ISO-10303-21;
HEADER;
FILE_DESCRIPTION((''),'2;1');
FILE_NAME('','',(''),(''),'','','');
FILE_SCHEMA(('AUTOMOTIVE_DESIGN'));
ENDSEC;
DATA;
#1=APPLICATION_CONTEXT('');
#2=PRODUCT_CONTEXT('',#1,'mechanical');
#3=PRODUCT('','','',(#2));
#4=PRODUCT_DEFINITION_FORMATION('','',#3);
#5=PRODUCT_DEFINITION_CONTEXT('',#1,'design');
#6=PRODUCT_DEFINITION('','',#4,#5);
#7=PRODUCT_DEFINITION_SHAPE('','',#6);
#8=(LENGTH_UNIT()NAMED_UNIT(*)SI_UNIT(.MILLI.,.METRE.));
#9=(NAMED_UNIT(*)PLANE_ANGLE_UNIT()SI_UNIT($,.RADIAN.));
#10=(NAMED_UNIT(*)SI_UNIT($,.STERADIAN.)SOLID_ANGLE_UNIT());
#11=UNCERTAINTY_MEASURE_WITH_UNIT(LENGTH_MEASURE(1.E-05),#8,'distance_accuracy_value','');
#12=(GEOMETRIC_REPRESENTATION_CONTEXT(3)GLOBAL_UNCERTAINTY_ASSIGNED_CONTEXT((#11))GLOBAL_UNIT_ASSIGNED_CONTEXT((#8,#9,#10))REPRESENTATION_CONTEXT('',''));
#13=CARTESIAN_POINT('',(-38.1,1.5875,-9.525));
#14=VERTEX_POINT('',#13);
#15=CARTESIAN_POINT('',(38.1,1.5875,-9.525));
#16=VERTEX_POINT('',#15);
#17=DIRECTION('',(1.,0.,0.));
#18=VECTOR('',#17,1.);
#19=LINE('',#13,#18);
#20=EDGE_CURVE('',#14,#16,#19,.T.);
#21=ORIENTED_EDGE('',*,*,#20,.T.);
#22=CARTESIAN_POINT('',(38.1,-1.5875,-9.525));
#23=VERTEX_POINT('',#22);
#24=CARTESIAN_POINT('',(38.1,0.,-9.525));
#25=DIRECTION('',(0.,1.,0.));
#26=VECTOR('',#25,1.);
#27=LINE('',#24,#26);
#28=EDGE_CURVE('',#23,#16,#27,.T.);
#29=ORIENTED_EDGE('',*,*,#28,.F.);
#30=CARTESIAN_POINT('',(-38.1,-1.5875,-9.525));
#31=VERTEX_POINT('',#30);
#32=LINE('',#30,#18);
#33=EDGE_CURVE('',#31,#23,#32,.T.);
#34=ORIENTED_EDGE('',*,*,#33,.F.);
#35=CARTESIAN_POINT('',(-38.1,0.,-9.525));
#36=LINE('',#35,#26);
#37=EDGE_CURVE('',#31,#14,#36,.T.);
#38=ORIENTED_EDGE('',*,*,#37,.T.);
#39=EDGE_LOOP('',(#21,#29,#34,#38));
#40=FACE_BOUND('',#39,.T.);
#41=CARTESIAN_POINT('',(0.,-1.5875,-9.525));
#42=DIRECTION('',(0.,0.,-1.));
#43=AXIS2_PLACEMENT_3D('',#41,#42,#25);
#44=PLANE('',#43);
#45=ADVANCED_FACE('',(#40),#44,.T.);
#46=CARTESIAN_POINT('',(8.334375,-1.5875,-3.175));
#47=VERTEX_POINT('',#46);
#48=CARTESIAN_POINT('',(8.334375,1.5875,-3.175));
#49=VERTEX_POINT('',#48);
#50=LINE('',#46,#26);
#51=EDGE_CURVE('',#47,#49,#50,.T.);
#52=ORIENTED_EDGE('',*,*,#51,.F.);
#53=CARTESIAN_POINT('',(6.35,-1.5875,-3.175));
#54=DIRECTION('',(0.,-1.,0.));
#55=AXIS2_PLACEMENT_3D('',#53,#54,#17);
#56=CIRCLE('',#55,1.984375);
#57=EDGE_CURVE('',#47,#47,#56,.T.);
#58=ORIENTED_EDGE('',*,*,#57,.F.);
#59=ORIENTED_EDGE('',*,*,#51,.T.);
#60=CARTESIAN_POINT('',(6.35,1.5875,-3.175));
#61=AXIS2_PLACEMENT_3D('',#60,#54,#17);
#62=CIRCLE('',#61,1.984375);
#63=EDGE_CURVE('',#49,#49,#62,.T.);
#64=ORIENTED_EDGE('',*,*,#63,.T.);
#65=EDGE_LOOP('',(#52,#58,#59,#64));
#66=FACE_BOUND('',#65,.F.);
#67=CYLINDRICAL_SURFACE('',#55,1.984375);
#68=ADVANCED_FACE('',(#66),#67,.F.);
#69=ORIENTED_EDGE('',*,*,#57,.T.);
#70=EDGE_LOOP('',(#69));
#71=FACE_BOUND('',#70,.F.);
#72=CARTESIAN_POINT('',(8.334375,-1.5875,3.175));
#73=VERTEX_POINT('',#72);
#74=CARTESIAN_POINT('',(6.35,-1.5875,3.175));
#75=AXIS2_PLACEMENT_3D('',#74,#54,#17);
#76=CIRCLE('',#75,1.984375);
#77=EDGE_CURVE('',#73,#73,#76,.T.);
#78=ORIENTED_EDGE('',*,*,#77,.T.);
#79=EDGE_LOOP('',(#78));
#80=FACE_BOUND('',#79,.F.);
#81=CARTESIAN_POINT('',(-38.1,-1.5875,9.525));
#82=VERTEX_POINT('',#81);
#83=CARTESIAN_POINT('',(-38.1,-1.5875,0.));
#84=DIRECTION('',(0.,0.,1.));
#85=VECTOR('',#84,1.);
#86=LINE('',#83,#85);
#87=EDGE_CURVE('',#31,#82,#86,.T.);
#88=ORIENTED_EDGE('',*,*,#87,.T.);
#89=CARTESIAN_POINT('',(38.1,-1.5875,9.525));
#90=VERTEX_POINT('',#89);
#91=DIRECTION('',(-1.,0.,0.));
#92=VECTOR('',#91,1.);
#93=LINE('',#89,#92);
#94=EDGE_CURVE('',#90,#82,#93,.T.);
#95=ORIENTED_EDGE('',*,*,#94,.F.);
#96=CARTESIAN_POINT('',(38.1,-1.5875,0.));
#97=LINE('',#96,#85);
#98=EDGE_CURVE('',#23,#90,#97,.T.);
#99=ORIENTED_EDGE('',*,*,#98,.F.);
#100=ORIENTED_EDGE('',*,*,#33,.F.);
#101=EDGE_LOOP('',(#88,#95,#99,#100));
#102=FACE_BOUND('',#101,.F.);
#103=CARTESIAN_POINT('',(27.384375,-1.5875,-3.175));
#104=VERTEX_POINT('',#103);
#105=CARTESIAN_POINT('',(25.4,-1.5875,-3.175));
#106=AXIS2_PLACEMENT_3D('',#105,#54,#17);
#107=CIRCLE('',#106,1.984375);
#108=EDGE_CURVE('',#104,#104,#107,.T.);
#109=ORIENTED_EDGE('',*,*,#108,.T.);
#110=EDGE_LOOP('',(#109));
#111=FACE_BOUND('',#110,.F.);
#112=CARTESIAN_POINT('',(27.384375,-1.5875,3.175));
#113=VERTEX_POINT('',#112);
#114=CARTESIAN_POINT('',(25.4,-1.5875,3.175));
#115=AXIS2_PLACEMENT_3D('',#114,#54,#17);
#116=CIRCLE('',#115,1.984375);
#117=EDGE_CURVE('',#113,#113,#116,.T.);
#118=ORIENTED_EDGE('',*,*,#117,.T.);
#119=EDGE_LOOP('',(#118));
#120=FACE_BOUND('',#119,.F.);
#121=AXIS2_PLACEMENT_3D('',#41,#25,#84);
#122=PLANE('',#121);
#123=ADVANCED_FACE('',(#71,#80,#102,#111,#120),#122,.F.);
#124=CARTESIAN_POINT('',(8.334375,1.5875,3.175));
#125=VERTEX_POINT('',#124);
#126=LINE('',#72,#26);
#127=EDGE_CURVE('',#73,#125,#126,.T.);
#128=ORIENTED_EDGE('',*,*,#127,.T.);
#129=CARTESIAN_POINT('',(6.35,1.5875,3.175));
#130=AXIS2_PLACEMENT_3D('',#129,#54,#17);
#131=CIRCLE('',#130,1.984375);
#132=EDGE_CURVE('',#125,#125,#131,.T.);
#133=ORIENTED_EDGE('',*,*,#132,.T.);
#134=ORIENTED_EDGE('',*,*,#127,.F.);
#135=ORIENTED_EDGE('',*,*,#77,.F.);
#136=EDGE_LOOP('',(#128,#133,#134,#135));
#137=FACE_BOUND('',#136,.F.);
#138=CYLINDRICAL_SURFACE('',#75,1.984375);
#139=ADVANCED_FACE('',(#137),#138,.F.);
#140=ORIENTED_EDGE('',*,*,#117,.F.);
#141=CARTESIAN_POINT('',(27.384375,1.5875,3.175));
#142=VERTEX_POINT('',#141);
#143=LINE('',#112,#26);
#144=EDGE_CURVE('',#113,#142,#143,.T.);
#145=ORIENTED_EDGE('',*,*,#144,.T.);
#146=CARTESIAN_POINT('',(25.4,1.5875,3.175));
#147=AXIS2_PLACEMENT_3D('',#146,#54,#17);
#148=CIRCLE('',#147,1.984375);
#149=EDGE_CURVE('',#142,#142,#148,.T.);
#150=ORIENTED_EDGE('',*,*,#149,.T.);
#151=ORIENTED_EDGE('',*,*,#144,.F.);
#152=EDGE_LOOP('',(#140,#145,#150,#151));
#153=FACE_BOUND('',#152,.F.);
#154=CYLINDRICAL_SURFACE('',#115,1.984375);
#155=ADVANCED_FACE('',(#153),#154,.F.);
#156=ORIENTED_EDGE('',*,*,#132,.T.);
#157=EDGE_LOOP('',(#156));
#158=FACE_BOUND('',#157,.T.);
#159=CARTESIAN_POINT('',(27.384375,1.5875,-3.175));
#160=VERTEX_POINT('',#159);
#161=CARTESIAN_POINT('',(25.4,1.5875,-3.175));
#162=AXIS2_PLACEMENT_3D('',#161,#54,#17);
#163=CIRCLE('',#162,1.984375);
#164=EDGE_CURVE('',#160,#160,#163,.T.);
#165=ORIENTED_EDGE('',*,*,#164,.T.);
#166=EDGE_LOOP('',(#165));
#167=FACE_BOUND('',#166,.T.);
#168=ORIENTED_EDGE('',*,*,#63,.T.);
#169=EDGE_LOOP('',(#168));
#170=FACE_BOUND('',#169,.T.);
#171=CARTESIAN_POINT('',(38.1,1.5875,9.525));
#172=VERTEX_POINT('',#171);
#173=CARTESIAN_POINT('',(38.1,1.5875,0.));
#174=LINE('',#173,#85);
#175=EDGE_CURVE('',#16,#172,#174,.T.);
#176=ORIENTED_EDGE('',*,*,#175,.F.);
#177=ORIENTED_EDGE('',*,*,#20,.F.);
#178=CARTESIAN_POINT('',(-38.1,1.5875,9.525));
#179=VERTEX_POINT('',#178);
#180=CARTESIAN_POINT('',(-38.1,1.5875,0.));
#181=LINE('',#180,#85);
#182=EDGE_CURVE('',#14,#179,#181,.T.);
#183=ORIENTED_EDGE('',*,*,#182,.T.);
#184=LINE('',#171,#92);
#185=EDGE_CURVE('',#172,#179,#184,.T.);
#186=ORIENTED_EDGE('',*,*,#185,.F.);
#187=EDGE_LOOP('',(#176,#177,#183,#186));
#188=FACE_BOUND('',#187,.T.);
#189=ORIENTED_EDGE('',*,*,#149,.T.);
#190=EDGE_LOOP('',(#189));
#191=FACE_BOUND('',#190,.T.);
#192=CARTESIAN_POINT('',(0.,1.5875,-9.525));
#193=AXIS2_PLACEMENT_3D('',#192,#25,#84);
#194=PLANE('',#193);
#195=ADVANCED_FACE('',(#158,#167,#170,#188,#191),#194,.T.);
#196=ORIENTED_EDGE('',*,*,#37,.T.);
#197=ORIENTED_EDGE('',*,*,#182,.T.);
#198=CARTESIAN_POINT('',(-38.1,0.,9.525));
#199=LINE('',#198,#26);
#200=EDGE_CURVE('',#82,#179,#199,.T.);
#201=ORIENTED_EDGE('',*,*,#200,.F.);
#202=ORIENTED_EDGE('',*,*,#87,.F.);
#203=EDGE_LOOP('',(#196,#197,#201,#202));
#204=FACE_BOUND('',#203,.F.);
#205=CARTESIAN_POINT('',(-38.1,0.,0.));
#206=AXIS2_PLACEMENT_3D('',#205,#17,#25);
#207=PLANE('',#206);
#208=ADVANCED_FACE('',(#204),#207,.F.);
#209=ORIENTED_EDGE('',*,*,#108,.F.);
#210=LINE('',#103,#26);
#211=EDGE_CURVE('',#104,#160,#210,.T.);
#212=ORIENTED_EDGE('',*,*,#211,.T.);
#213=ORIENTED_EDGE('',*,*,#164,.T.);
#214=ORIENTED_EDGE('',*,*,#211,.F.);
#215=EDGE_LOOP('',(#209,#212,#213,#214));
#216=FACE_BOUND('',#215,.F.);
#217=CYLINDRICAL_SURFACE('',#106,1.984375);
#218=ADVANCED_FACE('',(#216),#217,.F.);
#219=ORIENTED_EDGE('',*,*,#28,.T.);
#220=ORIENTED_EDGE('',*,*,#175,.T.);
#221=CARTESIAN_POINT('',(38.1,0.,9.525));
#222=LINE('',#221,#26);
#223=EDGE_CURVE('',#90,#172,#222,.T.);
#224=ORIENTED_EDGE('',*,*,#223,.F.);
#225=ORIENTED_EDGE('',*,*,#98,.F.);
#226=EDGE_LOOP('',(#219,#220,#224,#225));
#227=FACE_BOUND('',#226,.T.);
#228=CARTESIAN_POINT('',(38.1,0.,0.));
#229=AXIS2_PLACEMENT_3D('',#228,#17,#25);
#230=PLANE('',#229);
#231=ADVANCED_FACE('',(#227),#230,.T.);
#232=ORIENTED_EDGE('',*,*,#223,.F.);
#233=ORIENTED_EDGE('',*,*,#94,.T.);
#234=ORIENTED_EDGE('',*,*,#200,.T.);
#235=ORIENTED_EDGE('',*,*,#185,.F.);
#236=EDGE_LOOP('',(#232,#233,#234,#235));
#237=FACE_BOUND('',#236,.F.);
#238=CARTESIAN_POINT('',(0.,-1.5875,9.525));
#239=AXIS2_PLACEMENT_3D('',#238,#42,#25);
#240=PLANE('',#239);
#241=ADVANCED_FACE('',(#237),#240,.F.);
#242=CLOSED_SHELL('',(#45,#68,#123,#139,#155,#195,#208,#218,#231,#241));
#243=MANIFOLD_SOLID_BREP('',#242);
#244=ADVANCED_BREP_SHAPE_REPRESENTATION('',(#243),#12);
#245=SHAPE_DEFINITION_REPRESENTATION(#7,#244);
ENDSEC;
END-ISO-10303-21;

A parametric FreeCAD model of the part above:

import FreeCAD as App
import Part
import Sketcher
from FreeCAD import Vector
Q = App.Units.Quantity


def add_polygon(sketch, points):
    """Adds a closed chain of lines whose ends are joined by coincident constraints."""
    first, n = sketch.GeometryCount, len(points)
    for a, b in zip(points, points[1:] + points[:1]):
        sketch.addGeometry(Part.LineSegment(App.Vector(*a, 0), App.Vector(*b, 0)), False)
    for i in range(n):
        sketch.addConstraint(Sketcher.Constraint("Coincident", first + i, 2, first + (i + 1) % n, 1))

doc = App.newDocument("Part")
body = doc.addObject("PartDesign::Body", "Body")

# Sketch on YZ plane
sketch1 = doc.addObject("Sketcher::SketchObject", "Sketch")
body.addObject(sketch1)
sketch1.AttachmentSupport = (doc.YZ_Plane, [""])
sketch1.MapMode = "FlatFace"
add_polygon(sketch1, [(-1.5875, 9.525), (-1.5875, -9.525), (1.5875, -9.525), (1.5875, 9.525)])  # lines 0-3
sketch1.addConstraint(Sketcher.Constraint("Vertical", 0))
sketch1.addConstraint(Sketcher.Constraint("Horizontal", 1))
sketch1.addConstraint(Sketcher.Constraint("Vertical", 2))
sketch1.addConstraint(Sketcher.Constraint("Horizontal", 3))
sketch1.addConstraint(Sketcher.Constraint("Symmetric", 0, 2, 2, 2, -1, 1))
sketch1.addConstraint(Sketcher.Constraint("DistanceY", 0, 2, 0, 1, Q("0.75 in")))
sketch1.addConstraint(Sketcher.Constraint("DistanceX", 1, 1, 1, 2, Q("0.125 in")))
pad1 = doc.addObject("PartDesign::Pad", "Pad")
body.addObject(pad1)
pad1.Profile = sketch1
pad1.Length = Q("3 in")
pad1.Midplane = True

# Sketch on XZ plane
sketch2 = doc.addObject("Sketcher::SketchObject", "Sketch001")
body.addObject(sketch2)
sketch2.AttachmentSupport = (doc.XZ_Plane, [""])
sketch2.MapMode = "FlatFace"
sketch2.AttachmentOffset = App.Placement(Vector(0, 0, 0.0625 * 25.4), App.Rotation())
sketch2.addGeometry(Part.Circle(Vector(25.4, -3.175, 0), Vector(0, 0, 1), 1.984375), False)
sketch2.addGeometry(Part.Circle(Vector(6.35, -3.175, 0), Vector(0, 0, 1), 1.984375), False)
sketch2.addGeometry(Part.Circle(Vector(25.4, 3.175, 0), Vector(0, 0, 1), 1.984375), False)
sketch2.addGeometry(Part.Circle(Vector(6.35, 3.175, 0), Vector(0, 0, 1), 1.984375), False)
sketch2.addConstraint(Sketcher.Constraint("Equal", 0, 1))
sketch2.addConstraint(Sketcher.Constraint("Equal", 1, 2))
sketch2.addConstraint(Sketcher.Constraint("Equal", 2, 3))
sketch2.addConstraint(Sketcher.Constraint("Symmetric", 0, 3, 2, 3, -1))
sketch2.addConstraint(Sketcher.Constraint("Symmetric", 1, 3, 3, 3, -1))
sketch2.addConstraint(Sketcher.Constraint("Horizontal", 0, 3, 1, 3))
sketch2.addConstraint(Sketcher.Constraint("Diameter", 0, Q("0.15625 in")))
sketch2.addConstraint(Sketcher.Constraint("DistanceX", -1, 1, 0, 3, Q("1 in")))
sketch2.addConstraint(Sketcher.Constraint("DistanceX", -1, 1, 1, 3, Q("0.25 in")))
sketch2.addConstraint(Sketcher.Constraint("DistanceY", 0, 3, 2, 3, Q("0.25 in")))
pocket1 = doc.addObject("PartDesign::Pocket", "Pocket")
body.addObject(pocket1)
pocket1.Profile = sketch2
pocket1.Type = "ThroughAll"

doc.recompute()
